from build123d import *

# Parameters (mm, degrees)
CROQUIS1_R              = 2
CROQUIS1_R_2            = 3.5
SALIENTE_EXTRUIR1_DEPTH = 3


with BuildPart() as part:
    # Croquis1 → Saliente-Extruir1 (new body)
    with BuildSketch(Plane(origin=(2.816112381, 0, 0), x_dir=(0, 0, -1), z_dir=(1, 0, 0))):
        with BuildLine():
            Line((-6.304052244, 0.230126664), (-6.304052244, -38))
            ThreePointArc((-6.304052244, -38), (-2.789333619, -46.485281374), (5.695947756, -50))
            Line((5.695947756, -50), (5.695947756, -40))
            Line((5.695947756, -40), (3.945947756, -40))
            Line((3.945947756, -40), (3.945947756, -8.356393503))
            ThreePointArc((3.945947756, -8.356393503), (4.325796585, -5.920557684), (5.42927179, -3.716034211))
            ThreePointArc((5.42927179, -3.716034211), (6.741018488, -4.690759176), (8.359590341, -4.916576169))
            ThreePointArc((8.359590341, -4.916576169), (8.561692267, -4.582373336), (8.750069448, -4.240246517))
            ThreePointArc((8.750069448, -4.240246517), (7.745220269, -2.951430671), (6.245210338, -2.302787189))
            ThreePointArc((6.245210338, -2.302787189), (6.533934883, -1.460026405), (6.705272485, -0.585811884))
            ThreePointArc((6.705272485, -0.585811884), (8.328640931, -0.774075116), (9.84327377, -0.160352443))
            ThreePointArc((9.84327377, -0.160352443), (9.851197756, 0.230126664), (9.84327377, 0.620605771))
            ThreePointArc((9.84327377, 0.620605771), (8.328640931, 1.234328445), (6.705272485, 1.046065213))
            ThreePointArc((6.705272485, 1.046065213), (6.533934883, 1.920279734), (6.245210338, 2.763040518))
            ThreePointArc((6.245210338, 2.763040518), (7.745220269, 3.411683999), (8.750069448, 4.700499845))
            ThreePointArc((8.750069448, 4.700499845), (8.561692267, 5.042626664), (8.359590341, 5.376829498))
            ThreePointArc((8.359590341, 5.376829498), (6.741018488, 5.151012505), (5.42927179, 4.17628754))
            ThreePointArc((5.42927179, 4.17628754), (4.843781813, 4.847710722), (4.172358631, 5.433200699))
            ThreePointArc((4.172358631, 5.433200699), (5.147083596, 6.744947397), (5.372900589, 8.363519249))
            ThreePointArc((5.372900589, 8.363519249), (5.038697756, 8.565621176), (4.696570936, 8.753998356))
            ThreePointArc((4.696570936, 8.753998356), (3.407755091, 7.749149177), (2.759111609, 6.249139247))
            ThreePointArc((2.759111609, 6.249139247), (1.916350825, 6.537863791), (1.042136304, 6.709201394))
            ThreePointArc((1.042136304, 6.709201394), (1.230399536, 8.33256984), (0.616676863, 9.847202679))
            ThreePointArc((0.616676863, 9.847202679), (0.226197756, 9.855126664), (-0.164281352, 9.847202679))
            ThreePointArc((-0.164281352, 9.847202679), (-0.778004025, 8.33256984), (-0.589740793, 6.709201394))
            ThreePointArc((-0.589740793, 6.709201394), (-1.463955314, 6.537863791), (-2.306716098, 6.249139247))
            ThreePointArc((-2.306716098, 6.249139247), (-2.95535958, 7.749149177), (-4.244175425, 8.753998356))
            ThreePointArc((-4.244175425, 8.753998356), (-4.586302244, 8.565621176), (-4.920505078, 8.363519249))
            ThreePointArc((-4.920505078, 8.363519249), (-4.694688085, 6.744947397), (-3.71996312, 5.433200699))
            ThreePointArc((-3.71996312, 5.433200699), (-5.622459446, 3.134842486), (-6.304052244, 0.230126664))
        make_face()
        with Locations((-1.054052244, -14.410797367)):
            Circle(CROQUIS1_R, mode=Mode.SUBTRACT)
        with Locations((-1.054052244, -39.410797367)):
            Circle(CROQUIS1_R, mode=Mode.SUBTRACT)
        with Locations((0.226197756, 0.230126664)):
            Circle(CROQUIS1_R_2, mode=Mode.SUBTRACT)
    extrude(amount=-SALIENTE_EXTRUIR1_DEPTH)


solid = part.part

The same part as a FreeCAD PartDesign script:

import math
import FreeCAD as App
import Part
import Sketcher

doc = App.newDocument("Part")
params = doc.addObject("Spreadsheet::Sheet", "Params")
for row, (alias, value) in enumerate([
    ("sketch1_diameter", "4 mm"),
    ("sketch1_diameter2", "4 mm"),
    ("sketch1_diameter3", "7 mm"),
    ("sketch1_radius", "12 mm"),
    ("sketch1_radius2", "8 mm"),
    ("pad1_length", "3 mm"),
], start=1):
    params.set(f"A{row}", alias)
    params.set(f"B{row}", "=" + value)
    params.setAlias(f"B{row}", alias)

body = doc.addObject("PartDesign::Body", "Body")

# Sketch on YZ plane
sketch1 = body.newObject("Sketcher::SketchObject", "Sketch")
sketch1.AttachmentSupport = (doc.getObject("YZ_Plane"), [""])
sketch1.MapMode = "FlatFace"
sketch1.AttachmentOffset = App.Placement(App.Vector(0, 0, 2.816112), App.Rotation())
sketch1.addGeometry([
    Part.LineSegment(App.Vector(0.230127, 6.304052, 0), App.Vector(-38, 6.304052, 0)),  # 0
    Part.ArcOfCircle(Part.Circle(App.Vector(-38, -5.695948, 0), App.Vector(0, 0, 1), 12), math.radians(90), math.radians(180)),  # 1
    Part.LineSegment(App.Vector(-50, -5.695948, 0), App.Vector(-40, -5.695948, 0)),  # 2
    Part.LineSegment(App.Vector(-40, -5.695948, 0), App.Vector(-40, -3.945948, 0)),  # 3
    Part.LineSegment(App.Vector(-40, -3.945948, 0), App.Vector(-8.356394, -3.945948, 0)),  # 4
    Part.ArcOfCircle(Part.Circle(App.Vector(-8.356394, -11.945948, 0), App.Vector(0, 0, 1), 8), math.radians(54.546298), math.radians(90)),  # 5
    Part.ArcOfCircle(Part.Circle(App.Vector(-1.637103, -7.992091, 0), App.Vector(0, 0, 1), 3.3), math.radians(129.048586), math.radians(186.393909)),  # 6
    Part.ArcOfCircle(Part.Circle(App.Vector(0.230127, -0.226198, 0), App.Vector(0, 0, 1), 9.625), math.radians(-122.325085), math.radians(-117.674915)),  # 7
    Part.ArcOfCircle(Part.Circle(App.Vector(-5.56172, -5.726213, 0), App.Vector(0, 0, 1), 3.3), math.radians(-66.393909), math.radians(-9.048586)),  # 8
    Part.ArcOfCircle(Part.Circle(App.Vector(0.230127, -0.226198, 0), App.Vector(0, 0, 1), 6.53025), math.radians(-112.822275), math.radians(-97.177725)),  # 9
    Part.ArcOfCircle(Part.Circle(App.Vector(2.496005, -7.885274, 0), App.Vector(0, 0, 1), 3.3), math.radians(159.048586), math.radians(216.393909)),  # 10
    Part.ArcOfCircle(Part.Circle(App.Vector(0.230127, -0.226198, 0), App.Vector(0, 0, 1), 9.624999), math.radians(-92.325085), math.radians(-87.674915)),  # 11
    Part.ArcOfCircle(Part.Circle(App.Vector(-2.035752, -7.885274, 0), App.Vector(0, 0, 1), 3.3), math.radians(-36.393909), math.radians(20.951414)),  # 12
    Part.ArcOfCircle(Part.Circle(App.Vector(0.230127, -0.226198, 0), App.Vector(0, 0, 1), 6.53025), math.radians(-82.822275), math.radians(-67.177725)),  # 13
    Part.ArcOfCircle(Part.Circle(App.Vector(6.021973, -5.726213, 0), App.Vector(0, 0, 1), 3.3), math.radians(-170.951414), math.radians(-113.606091)),  # 14
    Part.ArcOfCircle(Part.Circle(App.Vector(0.230126, -0.226197, 0), App.Vector(0, 0, 1), 9.625001), math.radians(-62.325085), math.radians(-57.674915)),  # 15
    Part.ArcOfCircle(Part.Circle(App.Vector(2.097356, -7.992091, 0), App.Vector(0, 0, 1), 3.3), math.radians(-6.393909), math.radians(50.951414)),  # 16
    Part.ArcOfCircle(Part.Circle(App.Vector(0.230127, -0.226198, 0), App.Vector(0, 0, 1), 6.53025), math.radians(-52.822275), math.radians(-37.177725)),  # 17
    Part.ArcOfCircle(Part.Circle(App.Vector(7.99602, -2.093427, 0), App.Vector(0, 0, 1), 3.3), math.radians(-140.951414), math.radians(-83.606091)),  # 18
    Part.ArcOfCircle(Part.Circle(App.Vector(0.230128, -0.226198, 0), App.Vector(0, 0, 1), 9.624999), math.radians(-32.325086), math.radians(-27.674914)),  # 19
    Part.ArcOfCircle(Part.Circle(App.Vector(5.730142, -6.018044, 0), App.Vector(0, 0, 1), 3.3), math.radians(23.606091), math.radians(80.951414)),  # 20
    Part.ArcOfCircle(Part.Circle(App.Vector(0.230127, -0.226198, 0), App.Vector(0, 0, 1), 6.53025), math.radians(-22.822275), math.radians(-7.177725)),  # 21
    Part.ArcOfCircle(Part.Circle(App.Vector(7.889203, 2.039681, 0), App.Vector(0, 0, 1), 3.3), math.radians(-110.951414), math.radians(-53.606091)),  # 22
    Part.ArcOfCircle(Part.Circle(App.Vector(0.230126, -0.226198, 0), App.Vector(0, 0, 1), 9.625001), math.radians(-2.325085), math.radians(2.325085)),  # 23
    Part.ArcOfCircle(Part.Circle(App.Vector(7.889203, -2.492076, 0), App.Vector(0, 0, 1), 3.3), math.radians(53.606091), math.radians(110.951414)),  # 24
    Part.ArcOfCircle(Part.Circle(App.Vector(0.230127, -0.226198, 0), App.Vector(0, 0, 1), 6.53025), math.radians(7.177725), math.radians(22.822275)),  # 25
    Part.ArcOfCircle(Part.Circle(App.Vector(5.730142, 5.565649, 0), App.Vector(0, 0, 1), 3.3), math.radians(-80.951414), math.radians(-23.606091)),  # 26
    Part.ArcOfCircle(Part.Circle(App.Vector(0.230127, -0.226197, 0), App.Vector(0, 0, 1), 9.624999), math.radians(27.674915), math.radians(32.325085)),  # 27
    Part.ArcOfCircle(Part.Circle(App.Vector(7.99602, 1.641032, 0), App.Vector(0, 0, 1), 3.3), math.radians(83.606091), math.radians(140.951414)),  # 28
    Part.ArcOfCircle(Part.Circle(App.Vector(0.230127, -0.226198, 0), App.Vector(0, 0, 1), 6.53025), math.radians(37.177725), math.radians(90)),  # 29
    Part.Circle(App.Vector(-39.410797, 1.054052, 0), App.Vector(0, 0, 1), 2),  # 30
    Part.Circle(App.Vector(-14.410797, 1.054052, 0), App.Vector(0, 0, 1), 2),  # 31
    Part.Circle(App.Vector(0.230127, -0.226198, 0), App.Vector(0, 0, 1), 3.5),  # 32
], False)
sketch1.addConstraint([
    Sketcher.Constraint("Coincident", 0, 2, 1, 1),
    Sketcher.Constraint("Coincident", 1, 2, 2, 1),
    Sketcher.Constraint("Coincident", 2, 2, 3, 1),
    Sketcher.Constraint("Coincident", 3, 2, 4, 1),
    Sketcher.Constraint("Coincident", 4, 2, 5, 2),
    Sketcher.Constraint("Coincident", 5, 1, 6, 1),
    Sketcher.Constraint("Coincident", 6, 2, 7, 1),
    Sketcher.Constraint("Coincident", 7, 2, 8, 1),
    Sketcher.Constraint("Coincident", 8, 2, 9, 1),
    Sketcher.Constraint("Coincident", 9, 2, 10, 1),
    Sketcher.Constraint("Coincident", 10, 2, 11, 1),
    Sketcher.Constraint("Coincident", 11, 2, 12, 1),
    Sketcher.Constraint("Coincident", 12, 2, 13, 1),
    Sketcher.Constraint("Coincident", 13, 2, 14, 1),
    Sketcher.Constraint("Coincident", 14, 2, 15, 1),
    Sketcher.Constraint("Coincident", 15, 2, 16, 1),
    Sketcher.Constraint("Coincident", 16, 2, 17, 1),
    Sketcher.Constraint("Coincident", 17, 2, 18, 1),
    Sketcher.Constraint("Coincident", 18, 2, 19, 1),
    Sketcher.Constraint("Coincident", 19, 2, 20, 1),
    Sketcher.Constraint("Coincident", 20, 2, 21, 1),
    Sketcher.Constraint("Coincident", 21, 2, 22, 1),
    Sketcher.Constraint("Coincident", 22, 2, 23, 1),
    Sketcher.Constraint("Coincident", 23, 2, 24, 1),
    Sketcher.Constraint("Coincident", 24, 2, 25, 1),
    Sketcher.Constraint("Coincident", 25, 2, 26, 1),
    Sketcher.Constraint("Coincident", 26, 2, 27, 1),
    Sketcher.Constraint("Coincident", 27, 2, 28, 1),
    Sketcher.Constraint("Coincident", 28, 2, 29, 1),
    Sketcher.Constraint("Coincident", 29, 2, 0, 1),
    Sketcher.Constraint("Horizontal", 0),
    Sketcher.Constraint("Horizontal", 2),
    Sketcher.Constraint("Vertical", 3),
    Sketcher.Constraint("Horizontal", 4),
    Sketcher.Constraint("Coincident", 9, 3, 7, 3),
    Sketcher.Constraint("Coincident", 11, 3, 7, 3),
    Sketcher.Constraint("Coincident", 13, 3, 7, 3),
    Sketcher.Constraint("Coincident", 15, 3, 7, 3),
    Sketcher.Constraint("Coincident", 17, 3, 7, 3),
    Sketcher.Constraint("Coincident", 19, 3, 7, 3),
    Sketcher.Constraint("Coincident", 21, 3, 7, 3),
    Sketcher.Constraint("Coincident", 23, 3, 7, 3),
    Sketcher.Constraint("Coincident", 25, 3, 7, 3),
    Sketcher.Constraint("Coincident", 27, 3, 7, 3),
    Sketcher.Constraint("Coincident", 29, 3, 7, 3),
    Sketcher.Constraint("Coincident", 32, 3, 7, 3),
    Sketcher.Constraint("Diameter", 30, 4.0),
    Sketcher.Constraint("Diameter", 31, 4.0),
    Sketcher.Constraint("Diameter", 32, 7.0),
    Sketcher.Constraint("Radius", 1, 12.0),
    Sketcher.Constraint("Radius", 5, 8.0),
    Sketcher.Constraint("Radius", 6, 3.3),
    Sketcher.Constraint("Radius", 8, 3.3),
    Sketcher.Constraint("Radius", 10, 3.3),
    Sketcher.Constraint("Radius", 12, 3.3),
    Sketcher.Constraint("Radius", 14, 3.3),
    Sketcher.Constraint("Radius", 16, 3.3),
    Sketcher.Constraint("Radius", 18, 3.3),
    Sketcher.Constraint("Radius", 20, 3.3),
    Sketcher.Constraint("Radius", 22, 3.3),
    Sketcher.Constraint("Radius", 24, 3.3),
    Sketcher.Constraint("Radius", 26, 3.3),
    Sketcher.Constraint("Radius", 28, 3.3),
    Sketcher.Constraint("DistanceX", 2, 1, 2, 2, 10.0),
    Sketcher.Constraint("DistanceX", 1, 3, -1, 1, 38.0),
    Sketcher.Constraint("DistanceX", 0, 2, -1, 1, 38.0),
    Sketcher.Constraint("Radius", 7, 9.625),
    Sketcher.Constraint("Radius", 11, 9.624999),
    Sketcher.Constraint("Radius", 15, 9.625001),
    Sketcher.Constraint("Radius", 19, 9.624999),
    Sketcher.Constraint("Radius", 23, 9.625001),
    Sketcher.Constraint("Radius", 27, 9.624999),
    Sketcher.Constraint("DistanceY", 5, 3, 30, 3, 13.0),
    Sketcher.Constraint("DistanceY", 5, 3, 31, 3, 13.0),
    Sketcher.Constraint("DistanceY", 1, 2, 0, 2, 12.0),
    Sketcher.Constraint("DistanceY", 3, 1, 3, 2, 1.75),
    Sketcher.Constraint("Radius", 9, 6.53025),
    Sketcher.Constraint("Radius", 13, 6.53025),
    Sketcher.Constraint("Radius", 17, 6.53025),
    Sketcher.Constraint("Radius", 21, 6.53025),
    Sketcher.Constraint("Radius", 25, 6.53025),
    Sketcher.Constraint("Radius", 29, 6.53025),
    Sketcher.Constraint("DistanceY", 12, 3, 9, 2, 1.180001),
    Sketcher.Constraint("DistanceY", 10, 3, 9, 2, 1.180001),
    Sketcher.Constraint("DistanceY", 10, 3, 12, 2, 1.180001),
    Sketcher.Constraint("DistanceX", 21, 2, 24, 3, 1.180001),
    Sketcher.Constraint("DistanceX", 21, 2, 22, 3, 1.180001),
    Sketcher.Constraint("DistanceX", 24, 2, 22, 3, 1.180001),
    Sketcher.Constraint("DistanceX", -1, 1, 19, 2, 8.753998),
    Sketcher.Constraint("DistanceX", -1, 1, 26, 2, 8.753998),
    Sketcher.Constraint("DistanceY", 10, 2, 12, 3, 1.958),
    Sketcher.Constraint("DistanceX", 24, 3, 22, 2, 1.958),
    Sketcher.Constraint("DistanceY", 11, 3, -1, 1, 0.226198),
    Sketcher.Constraint("DistanceX", -1, 1, 14, 2, 4.7005),
    Sketcher.Constraint("DistanceX", -1, 1, 17, 2, 5.433201),
    Sketcher.Constraint("DistanceY", 18, 2, -1, 1, 5.372901),
    Sketcher.Constraint("DistanceX", -1, 1, 21, 2, 6.709201),
    Sketcher.Constraint("DistanceX", -1, 1, 28, 2, 5.433201),
    Sketcher.Constraint("DistanceX", 5, 3, 10, 3, 10.852399),
    Sketcher.Constraint("DistanceY", 6, 2, 6, 3, 0.367499),
    Sketcher.Constraint("DistanceX", 13, 2, 20, 3, 2.967101),
    Sketcher.Constraint("DistanceY", 15, 2, 16, 3, 0.367499),
    Sketcher.Constraint("DistanceY", 14, 3, 20, 2, 2.967101),
    Sketcher.Constraint("DistanceX", 28, 3, 27, 2, 0.367499),
    Sketcher.Constraint("DistanceX", 0, 2, 0, 1, 38.230127),
    Sketcher.Constraint("DistanceX", 4, 1, 4, 2, 31.643606),
    Sketcher.Constraint("DistanceY", 6, 3, -1, 1, 7.992091),
    Sketcher.Constraint("DistanceX", 8, 3, -1, 1, 5.56172),
    Sketcher.Constraint("DistanceY", 16, 3, -1, 1, 7.992091),
    Sketcher.Constraint("DistanceX", -1, 1, 26, 3, 5.730142),
    Sketcher.Constraint("DistanceY", 7, 2, -1, 1, 8.750069),
    Sketcher.Constraint("DistanceX", 30, 3, -1, 1, 39.410797),
    Sketcher.Constraint("DistanceX", 31, 3, -1, 1, 14.410797),
])
sketch1.setExpression("Constraints[46]", "Params.sketch1_diameter")
sketch1.setExpression("Constraints[47]", "Params.sketch1_diameter2")
sketch1.setExpression("Constraints[48]", "Params.sketch1_diameter3")
sketch1.setExpression("Constraints[49]", "Params.sketch1_radius")
sketch1.setExpression("Constraints[50]", "Params.sketch1_radius2")
pad1 = body.newObject("PartDesign::Pad", "Pad")
pad1.Profile = sketch1
pad1.setExpression("Length", "Params.pad1_length")
pad1.Reversed = True

doc.recompute()
